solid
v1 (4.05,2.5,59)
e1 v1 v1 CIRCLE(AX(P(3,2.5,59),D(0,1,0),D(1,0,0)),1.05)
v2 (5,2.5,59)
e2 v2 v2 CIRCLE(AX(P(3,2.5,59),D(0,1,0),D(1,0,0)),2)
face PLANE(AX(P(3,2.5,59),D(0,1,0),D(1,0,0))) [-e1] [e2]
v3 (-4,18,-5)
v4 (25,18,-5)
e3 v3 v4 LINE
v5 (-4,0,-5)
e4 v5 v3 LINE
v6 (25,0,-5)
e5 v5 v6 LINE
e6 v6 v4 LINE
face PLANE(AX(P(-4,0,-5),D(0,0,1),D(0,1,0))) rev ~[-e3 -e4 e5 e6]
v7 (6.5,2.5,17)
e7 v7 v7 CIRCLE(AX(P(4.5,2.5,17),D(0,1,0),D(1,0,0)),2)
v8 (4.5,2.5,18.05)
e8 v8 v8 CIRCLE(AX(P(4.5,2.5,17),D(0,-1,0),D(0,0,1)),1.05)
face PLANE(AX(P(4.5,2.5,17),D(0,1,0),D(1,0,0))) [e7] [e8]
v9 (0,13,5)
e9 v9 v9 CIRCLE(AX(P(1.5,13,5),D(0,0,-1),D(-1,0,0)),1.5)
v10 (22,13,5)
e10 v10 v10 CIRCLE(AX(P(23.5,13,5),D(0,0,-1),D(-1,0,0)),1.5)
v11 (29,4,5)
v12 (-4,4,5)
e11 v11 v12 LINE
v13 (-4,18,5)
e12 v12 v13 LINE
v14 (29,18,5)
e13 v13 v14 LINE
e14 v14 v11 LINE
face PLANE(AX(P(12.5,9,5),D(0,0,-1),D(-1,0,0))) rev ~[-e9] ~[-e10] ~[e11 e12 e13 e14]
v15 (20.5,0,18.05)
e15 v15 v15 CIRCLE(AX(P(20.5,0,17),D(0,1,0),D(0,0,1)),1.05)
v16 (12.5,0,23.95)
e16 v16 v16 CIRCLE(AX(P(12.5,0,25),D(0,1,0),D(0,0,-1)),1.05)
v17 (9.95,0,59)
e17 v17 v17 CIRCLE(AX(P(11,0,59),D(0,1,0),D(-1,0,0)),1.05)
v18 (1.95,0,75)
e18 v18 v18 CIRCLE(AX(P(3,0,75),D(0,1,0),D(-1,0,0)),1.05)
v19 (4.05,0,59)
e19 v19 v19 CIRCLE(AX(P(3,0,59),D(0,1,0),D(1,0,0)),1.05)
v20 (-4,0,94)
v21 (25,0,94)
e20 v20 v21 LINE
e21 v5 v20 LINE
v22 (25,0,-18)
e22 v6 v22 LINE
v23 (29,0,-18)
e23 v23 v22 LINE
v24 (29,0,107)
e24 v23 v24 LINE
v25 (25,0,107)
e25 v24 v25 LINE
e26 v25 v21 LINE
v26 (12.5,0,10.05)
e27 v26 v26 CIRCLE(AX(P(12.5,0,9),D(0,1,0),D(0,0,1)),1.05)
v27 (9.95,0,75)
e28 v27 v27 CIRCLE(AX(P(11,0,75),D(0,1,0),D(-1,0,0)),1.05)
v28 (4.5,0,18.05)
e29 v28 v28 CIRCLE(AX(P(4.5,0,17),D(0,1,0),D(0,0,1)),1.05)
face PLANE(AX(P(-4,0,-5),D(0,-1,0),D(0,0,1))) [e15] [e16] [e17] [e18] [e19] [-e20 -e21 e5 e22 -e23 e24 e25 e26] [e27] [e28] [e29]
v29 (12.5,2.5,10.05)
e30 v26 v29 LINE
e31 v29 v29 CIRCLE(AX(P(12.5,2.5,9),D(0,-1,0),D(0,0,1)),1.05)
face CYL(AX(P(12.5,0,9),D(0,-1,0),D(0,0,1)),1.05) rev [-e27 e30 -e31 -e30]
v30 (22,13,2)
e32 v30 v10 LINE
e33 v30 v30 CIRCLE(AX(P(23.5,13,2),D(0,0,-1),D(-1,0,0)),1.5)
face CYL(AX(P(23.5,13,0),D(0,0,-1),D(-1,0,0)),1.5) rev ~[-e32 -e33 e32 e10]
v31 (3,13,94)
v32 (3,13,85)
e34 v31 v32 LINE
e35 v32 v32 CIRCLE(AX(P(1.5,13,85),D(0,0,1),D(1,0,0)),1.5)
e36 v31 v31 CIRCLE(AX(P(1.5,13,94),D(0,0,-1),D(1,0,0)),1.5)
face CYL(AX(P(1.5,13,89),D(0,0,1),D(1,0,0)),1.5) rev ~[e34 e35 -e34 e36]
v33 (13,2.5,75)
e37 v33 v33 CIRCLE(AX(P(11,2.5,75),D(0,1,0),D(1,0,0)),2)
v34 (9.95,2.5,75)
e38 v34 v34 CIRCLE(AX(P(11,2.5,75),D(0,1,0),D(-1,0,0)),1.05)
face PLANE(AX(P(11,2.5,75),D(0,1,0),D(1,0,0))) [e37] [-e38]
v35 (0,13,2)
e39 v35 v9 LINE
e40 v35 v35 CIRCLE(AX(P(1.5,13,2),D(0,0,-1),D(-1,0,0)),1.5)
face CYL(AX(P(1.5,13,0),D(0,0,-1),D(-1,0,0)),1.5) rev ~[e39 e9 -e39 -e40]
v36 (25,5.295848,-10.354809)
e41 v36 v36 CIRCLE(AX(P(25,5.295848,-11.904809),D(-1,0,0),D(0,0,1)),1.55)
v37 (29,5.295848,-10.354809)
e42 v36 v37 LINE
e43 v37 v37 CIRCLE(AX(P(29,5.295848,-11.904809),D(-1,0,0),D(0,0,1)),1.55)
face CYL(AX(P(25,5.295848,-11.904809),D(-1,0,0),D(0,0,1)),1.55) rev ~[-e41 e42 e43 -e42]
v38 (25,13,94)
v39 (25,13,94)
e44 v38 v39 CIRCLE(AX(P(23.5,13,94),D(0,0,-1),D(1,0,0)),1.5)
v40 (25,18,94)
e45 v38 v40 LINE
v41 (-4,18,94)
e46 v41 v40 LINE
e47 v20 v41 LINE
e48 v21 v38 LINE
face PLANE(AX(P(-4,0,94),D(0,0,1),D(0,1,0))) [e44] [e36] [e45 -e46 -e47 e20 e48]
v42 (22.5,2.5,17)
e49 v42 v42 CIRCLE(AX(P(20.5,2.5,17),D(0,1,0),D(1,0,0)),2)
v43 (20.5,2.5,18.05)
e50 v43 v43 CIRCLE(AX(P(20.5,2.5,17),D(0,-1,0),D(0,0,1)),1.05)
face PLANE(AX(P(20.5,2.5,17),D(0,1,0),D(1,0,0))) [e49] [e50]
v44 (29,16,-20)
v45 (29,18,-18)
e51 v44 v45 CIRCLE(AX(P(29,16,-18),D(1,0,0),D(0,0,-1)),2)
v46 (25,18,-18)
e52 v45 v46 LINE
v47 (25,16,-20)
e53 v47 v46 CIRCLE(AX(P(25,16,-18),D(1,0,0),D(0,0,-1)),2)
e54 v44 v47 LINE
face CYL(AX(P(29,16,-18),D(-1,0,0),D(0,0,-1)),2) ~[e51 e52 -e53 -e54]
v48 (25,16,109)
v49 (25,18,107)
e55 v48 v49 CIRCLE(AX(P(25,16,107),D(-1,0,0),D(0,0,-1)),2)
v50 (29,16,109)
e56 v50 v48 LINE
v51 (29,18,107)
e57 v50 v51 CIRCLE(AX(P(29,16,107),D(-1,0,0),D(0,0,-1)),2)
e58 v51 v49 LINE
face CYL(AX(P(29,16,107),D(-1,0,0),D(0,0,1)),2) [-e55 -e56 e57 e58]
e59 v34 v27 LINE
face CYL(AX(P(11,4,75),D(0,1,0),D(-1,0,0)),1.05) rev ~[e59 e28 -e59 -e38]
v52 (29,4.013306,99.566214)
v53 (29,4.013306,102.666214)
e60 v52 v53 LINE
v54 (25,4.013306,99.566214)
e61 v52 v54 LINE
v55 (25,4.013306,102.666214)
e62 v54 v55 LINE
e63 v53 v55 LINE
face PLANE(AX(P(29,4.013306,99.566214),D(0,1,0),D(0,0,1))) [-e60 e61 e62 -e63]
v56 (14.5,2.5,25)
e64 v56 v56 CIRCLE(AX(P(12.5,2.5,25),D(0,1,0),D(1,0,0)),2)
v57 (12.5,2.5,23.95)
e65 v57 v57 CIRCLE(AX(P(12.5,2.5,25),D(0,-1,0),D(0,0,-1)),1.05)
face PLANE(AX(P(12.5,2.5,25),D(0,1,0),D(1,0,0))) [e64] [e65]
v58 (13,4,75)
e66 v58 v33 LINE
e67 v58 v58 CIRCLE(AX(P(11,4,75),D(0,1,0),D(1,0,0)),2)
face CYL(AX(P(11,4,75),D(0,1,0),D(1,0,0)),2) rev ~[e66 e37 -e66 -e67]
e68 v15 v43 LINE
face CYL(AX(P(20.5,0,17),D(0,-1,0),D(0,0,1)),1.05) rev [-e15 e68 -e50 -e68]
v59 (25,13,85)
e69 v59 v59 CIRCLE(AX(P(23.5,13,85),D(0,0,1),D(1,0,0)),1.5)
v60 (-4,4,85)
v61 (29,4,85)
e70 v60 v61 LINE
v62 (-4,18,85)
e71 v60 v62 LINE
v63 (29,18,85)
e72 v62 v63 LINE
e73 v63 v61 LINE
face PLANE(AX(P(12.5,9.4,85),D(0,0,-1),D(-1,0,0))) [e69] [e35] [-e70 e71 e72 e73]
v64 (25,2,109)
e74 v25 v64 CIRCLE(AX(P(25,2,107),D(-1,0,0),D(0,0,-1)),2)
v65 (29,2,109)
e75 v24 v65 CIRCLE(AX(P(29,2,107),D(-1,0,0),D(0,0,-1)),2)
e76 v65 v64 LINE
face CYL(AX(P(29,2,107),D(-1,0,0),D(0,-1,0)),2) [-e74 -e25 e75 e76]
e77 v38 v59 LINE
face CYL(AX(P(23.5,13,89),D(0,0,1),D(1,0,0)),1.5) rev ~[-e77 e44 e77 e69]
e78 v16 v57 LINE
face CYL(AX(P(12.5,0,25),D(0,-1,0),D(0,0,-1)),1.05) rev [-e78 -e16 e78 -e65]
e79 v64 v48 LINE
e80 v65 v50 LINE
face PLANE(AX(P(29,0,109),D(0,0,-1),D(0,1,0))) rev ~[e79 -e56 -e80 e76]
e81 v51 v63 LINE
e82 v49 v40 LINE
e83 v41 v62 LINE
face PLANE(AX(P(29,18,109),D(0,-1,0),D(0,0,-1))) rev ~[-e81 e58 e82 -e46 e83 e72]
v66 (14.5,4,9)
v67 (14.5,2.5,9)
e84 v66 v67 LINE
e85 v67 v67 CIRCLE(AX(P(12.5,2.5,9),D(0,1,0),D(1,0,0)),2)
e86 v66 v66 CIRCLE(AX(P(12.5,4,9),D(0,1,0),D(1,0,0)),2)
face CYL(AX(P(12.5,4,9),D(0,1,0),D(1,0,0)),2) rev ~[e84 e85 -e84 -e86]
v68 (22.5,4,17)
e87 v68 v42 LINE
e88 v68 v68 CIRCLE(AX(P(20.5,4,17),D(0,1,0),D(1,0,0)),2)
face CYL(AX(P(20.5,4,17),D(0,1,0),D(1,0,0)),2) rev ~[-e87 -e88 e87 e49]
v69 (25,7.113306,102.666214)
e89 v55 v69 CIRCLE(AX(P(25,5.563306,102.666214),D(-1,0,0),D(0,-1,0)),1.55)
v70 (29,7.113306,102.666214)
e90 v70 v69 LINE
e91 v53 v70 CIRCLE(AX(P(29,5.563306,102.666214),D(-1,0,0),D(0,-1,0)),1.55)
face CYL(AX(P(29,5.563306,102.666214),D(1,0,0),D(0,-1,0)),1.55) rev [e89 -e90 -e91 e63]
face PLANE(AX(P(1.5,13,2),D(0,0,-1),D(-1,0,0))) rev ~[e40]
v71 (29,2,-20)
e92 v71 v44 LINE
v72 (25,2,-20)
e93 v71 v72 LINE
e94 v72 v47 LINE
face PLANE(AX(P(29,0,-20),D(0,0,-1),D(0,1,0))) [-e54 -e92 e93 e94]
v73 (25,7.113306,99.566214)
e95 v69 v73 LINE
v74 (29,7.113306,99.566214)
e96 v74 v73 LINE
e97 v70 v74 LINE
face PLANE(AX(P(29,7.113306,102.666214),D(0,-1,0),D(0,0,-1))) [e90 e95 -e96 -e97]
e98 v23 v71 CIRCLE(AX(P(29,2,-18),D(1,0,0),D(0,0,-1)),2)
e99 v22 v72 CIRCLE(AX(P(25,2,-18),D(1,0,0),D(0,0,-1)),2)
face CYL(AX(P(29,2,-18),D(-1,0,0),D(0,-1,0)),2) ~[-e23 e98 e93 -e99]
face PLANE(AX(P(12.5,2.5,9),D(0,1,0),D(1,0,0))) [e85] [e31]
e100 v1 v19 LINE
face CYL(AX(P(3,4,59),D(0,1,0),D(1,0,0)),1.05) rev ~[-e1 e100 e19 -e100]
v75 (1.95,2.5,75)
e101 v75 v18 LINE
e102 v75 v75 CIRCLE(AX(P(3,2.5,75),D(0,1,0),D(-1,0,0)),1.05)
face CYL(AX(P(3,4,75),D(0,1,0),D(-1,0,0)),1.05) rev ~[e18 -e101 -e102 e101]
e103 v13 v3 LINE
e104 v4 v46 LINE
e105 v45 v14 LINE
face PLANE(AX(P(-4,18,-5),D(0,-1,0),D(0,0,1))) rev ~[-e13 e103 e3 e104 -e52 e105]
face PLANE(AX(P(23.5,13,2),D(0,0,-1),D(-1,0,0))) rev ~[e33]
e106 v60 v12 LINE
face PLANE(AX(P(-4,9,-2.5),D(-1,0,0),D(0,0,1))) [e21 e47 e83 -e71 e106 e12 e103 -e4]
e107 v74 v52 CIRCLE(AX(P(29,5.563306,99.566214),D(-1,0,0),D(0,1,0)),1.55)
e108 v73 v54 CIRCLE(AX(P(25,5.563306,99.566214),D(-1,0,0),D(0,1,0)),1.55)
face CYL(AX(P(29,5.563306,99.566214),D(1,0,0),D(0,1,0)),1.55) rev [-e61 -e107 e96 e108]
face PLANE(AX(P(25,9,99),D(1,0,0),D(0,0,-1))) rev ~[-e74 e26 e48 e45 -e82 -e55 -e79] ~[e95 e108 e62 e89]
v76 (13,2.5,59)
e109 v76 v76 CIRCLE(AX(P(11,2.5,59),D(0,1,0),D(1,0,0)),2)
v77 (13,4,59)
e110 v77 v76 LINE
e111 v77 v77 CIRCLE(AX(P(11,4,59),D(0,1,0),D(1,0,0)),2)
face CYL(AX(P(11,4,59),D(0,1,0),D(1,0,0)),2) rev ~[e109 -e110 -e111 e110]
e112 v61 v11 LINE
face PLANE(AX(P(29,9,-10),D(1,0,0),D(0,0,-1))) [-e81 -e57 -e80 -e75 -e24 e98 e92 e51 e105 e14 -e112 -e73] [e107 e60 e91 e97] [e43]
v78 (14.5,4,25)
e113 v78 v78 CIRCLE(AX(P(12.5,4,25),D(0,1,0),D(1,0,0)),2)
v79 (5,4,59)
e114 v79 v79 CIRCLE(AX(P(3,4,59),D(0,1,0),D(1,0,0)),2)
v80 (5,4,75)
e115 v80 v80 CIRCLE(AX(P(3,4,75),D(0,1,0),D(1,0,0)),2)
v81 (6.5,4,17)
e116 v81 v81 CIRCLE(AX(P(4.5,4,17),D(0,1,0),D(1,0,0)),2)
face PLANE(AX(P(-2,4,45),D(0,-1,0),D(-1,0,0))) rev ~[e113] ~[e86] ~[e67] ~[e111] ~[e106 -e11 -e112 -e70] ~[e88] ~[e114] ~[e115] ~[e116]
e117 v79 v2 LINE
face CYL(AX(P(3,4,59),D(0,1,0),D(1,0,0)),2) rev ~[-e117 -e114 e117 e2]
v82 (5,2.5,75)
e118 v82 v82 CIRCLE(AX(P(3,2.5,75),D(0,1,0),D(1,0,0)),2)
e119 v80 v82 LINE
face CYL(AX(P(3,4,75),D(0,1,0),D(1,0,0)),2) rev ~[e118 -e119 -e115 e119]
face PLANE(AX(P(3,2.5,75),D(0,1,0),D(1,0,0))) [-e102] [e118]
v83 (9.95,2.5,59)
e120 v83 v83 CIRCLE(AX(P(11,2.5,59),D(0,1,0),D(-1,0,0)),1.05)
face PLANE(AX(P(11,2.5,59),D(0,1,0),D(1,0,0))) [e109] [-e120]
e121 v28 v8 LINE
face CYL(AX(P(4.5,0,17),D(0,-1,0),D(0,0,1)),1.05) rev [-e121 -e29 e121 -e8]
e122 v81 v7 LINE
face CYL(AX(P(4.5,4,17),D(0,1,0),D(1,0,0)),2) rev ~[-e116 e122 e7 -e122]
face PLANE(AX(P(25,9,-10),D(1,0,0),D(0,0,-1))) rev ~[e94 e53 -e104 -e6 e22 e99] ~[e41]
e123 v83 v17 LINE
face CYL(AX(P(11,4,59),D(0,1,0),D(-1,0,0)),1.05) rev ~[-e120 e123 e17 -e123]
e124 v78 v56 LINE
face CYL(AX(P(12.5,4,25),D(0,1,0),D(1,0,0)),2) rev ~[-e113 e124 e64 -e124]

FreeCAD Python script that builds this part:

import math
import FreeCAD as App
import Part
import Sketcher


def edges_at(feature, points):
    """Names of the edges that pass closest to the given points."""
    edges = feature.Shape.Edges
    near = lambda p: min(range(len(edges)), key=lambda i: edges[i].distToShape(Part.Vertex(*p))[0])
    return sorted({f"Edge{near(p) + 1}" for p in points})

doc = App.newDocument("Part")
body = doc.addObject("PartDesign::Body", "Body")

# Sketch on XZ plane
sketch1 = body.newObject("Sketcher::SketchObject", "Sketch")
sketch1.AttachmentSupport = (doc.getObject("XZ_Plane"), [""])
sketch1.MapMode = "FlatFace"
sketch1.addGeometry(Part.LineSegment(App.Vector(0, 0, 0), App.Vector(0, 34, 0)), False)
sketch1.addGeometry(Part.LineSegment(App.Vector(0, 34, 0), App.Vector(25, 34, 0)), False)
sketch1.addGeometry(Part.LineSegment(App.Vector(25, 34, 0), App.Vector(25, 0, 0)), False)
sketch1.addGeometry(Part.LineSegment(App.Vector(25, 0, 0), App.Vector(0, 0, 0)), False)
sketch1.addGeometry(Part.Circle(App.Vector(12.5, 25, 0), App.Vector(0, 0, 1), 1.1), False)
sketch1.addGeometry(Part.Circle(App.Vector(4.5, 17, 0), App.Vector(0, 0, 1), 1.1), False)
sketch1.addGeometry(Part.Circle(App.Vector(12.5, 9, 0), App.Vector(0, 0, 1), 1.1), False)
sketch1.addGeometry(Part.Circle(App.Vector(20.5, 17, 0), App.Vector(0, 0, 1), 1.1), False)
sketch1.addConstraint(Sketcher.Constraint("Coincident", 0, 2, 1, 1))
sketch1.addConstraint(Sketcher.Constraint("Coincident", 1, 2, 2, 1))
sketch1.addConstraint(Sketcher.Constraint("Coincident", 2, 2, 3, 1))
sketch1.addConstraint(Sketcher.Constraint("Coincident", 3, 2, 0, 1))
sketch1.addConstraint(Sketcher.Constraint("Vertical", 0))
sketch1.addConstraint(Sketcher.Constraint("Horizontal", 1))
sketch1.addConstraint(Sketcher.Constraint("Vertical", 2))
sketch1.addConstraint(Sketcher.Constraint("Horizontal", 3))
sketch1.addConstraint(Sketcher.Constraint("Coincident", 3, 2, -1, 1))
sketch1.addConstraint(Sketcher.Constraint("Equal", 4, 5))
sketch1.addConstraint(Sketcher.Constraint("Equal", 5, 6))
sketch1.addConstraint(Sketcher.Constraint("Equal", 6, 7))
sketch1.addConstraint(Sketcher.Constraint("Horizontal", 5, 3, 7, 3))
sketch1.addConstraint(Sketcher.Constraint("Vertical", 4, 3, 6, 3))
sketch1.addConstraint(Sketcher.Constraint("Diameter", 4, 2.1))
sketch1.addConstraint(Sketcher.Constraint("DistanceX", 1, 1, 1, 2, 25.0))
sketch1.addConstraint(Sketcher.Constraint("DistanceY", 0, 1, 0, 2, 34.0))
sketch1.addConstraint(Sketcher.Constraint("DistanceY", -1, 1, 4, 3, 25.0))
sketch1.addConstraint(Sketcher.Constraint("DistanceY", -1, 1, 5, 3, 17.0))
sketch1.addConstraint(Sketcher.Constraint("DistanceY", -1, 1, 6, 3, 9.0))
sketch1.addConstraint(Sketcher.Constraint("DistanceX", 5, 3, 4, 3, 8.0))
sketch1.addConstraint(Sketcher.Constraint("DistanceX", 4, 3, 7, 3, 8.0))
sketch1.addConstraint(Sketcher.Constraint("DistanceX", -1, 1, 4, 3, 12.5))
pad1 = body.newObject("PartDesign::Pad", "Pad")
pad1.Profile = sketch1
pad1.Length = 4
pad1.Reversed = True

# Sketch on XY plane
sketch2 = body.newObject("Sketcher::SketchObject", "Sketch001")
sketch2.AttachmentSupport = (doc.getObject("XY_Plane"), [""])
sketch2.MapMode = "FlatFace"
sketch2.addGeometry(Part.LineSegment(App.Vector(-4, 0, 0), App.Vector(-4, 18, 0)), False)
sketch2.addGeometry(Part.LineSegment(App.Vector(-4, 18, 0), App.Vector(29, 18, 0)), False)
sketch2.addGeometry(Part.LineSegment(App.Vector(29, 18, 0), App.Vector(29, 0, 0)), False)
sketch2.addGeometry(Part.LineSegment(App.Vector(29, 0, 0), App.Vector(-4, 0, 0)), False)
sketch2.addGeometry(Part.Circle(App.Vector(23.5, 13, 0), App.Vector(0, 0, 1), 1.5), False)
sketch2.addGeometry(Part.Circle(App.Vector(1.5, 13, 0), App.Vector(0, 0, 1), 1.5), False)
sketch2.addConstraint(Sketcher.Constraint("Coincident", 0, 2, 1, 1))
sketch2.addConstraint(Sketcher.Constraint("Coincident", 1, 2, 2, 1))
sketch2.addConstraint(Sketcher.Constraint("Coincident", 2, 2, 3, 1))
sketch2.addConstraint(Sketcher.Constraint("Coincident", 3, 2, 0, 1))
sketch2.addConstraint(Sketcher.Constraint("Vertical", 0))
sketch2.addConstraint(Sketcher.Constraint("Horizontal", 1))
sketch2.addConstraint(Sketcher.Constraint("Vertical", 2))
sketch2.addConstraint(Sketcher.Constraint("Horizontal", 3))
sketch2.addConstraint(Sketcher.Constraint("Equal", 4, 5))
sketch2.addConstraint(Sketcher.Constraint("PointOnObject", 2, 2, -1))
sketch2.addConstraint(Sketcher.Constraint("Horizontal", 4, 3, 5, 3))
sketch2.addConstraint(Sketcher.Constraint("Diameter", 4, 3.0))
sketch2.addConstraint(Sketcher.Constraint("DistanceX", 1, 1, 1, 2, 33.0))
sketch2.addConstraint(Sketcher.Constraint("DistanceY", 0, 1, 0, 2, 18.0))
sketch2.addConstraint(Sketcher.Constraint("DistanceY", -1, 1, 4, 3, 13.0))
sketch2.addConstraint(Sketcher.Constraint("DistanceX", 0, 2, -1, 1, 4.0))
sketch2.addConstraint(Sketcher.Constraint("DistanceX", 5, 3, 4, 3, 22.0))
sketch2.addConstraint(Sketcher.Constraint("DistanceX", -1, 1, 4, 3, 23.5))
pad2 = body.newObject("PartDesign::Pad", "Pad001")
pad2.Profile = sketch2
pad2.Length = 5

# Sketch on XY plane
sketch3 = body.newObject("Sketcher::SketchObject", "Sketch002")
sketch3.AttachmentSupport = (doc.getObject("XY_Plane"), [""])
sketch3.MapMode = "FlatFace"
sketch3.addGeometry(Part.Circle(App.Vector(1.5, 13, 0), App.Vector(0, 0, 1), 1.5), False)
sketch3.addGeometry(Part.Circle(App.Vector(23.5, 13, 0), App.Vector(0, 0, 1), 1.5), False)
sketch3.addConstraint(Sketcher.Constraint("Equal", 0, 1))
sketch3.addConstraint(Sketcher.Constraint("Horizontal", 0, 3, 1, 3))
sketch3.addConstraint(Sketcher.Constraint("Diameter", 0, 3.0))
sketch3.addConstraint(Sketcher.Constraint("DistanceY", -1, 1, 0, 3, 13.0))
sketch3.addConstraint(Sketcher.Constraint("DistanceX", 0, 3, 1, 3, 22.0))
sketch3.addConstraint(Sketcher.Constraint("DistanceX", -1, 1, 0, 3, 1.5))
pad3 = body.newObject("PartDesign::Pad", "Pad002")
pad3.Profile = sketch3
pad3.Length = 2

# Sketch on XY plane
sketch4 = body.newObject("Sketcher::SketchObject", "Sketch003")
sketch4.AttachmentSupport = (doc.getObject("XY_Plane"), [""])
sketch4.MapMode = "FlatFace"
sketch4.AttachmentOffset = App.Placement(App.Vector(0, 0, 34), App.Rotation())
sketch4.addGeometry(Part.LineSegment(App.Vector(0, 4, 0), App.Vector(0, 0, 0)), False)
sketch4.addGeometry(Part.LineSegment(App.Vector(0, 0, 0), App.Vector(25, 0, 0)), False)
sketch4.addGeometry(Part.LineSegment(App.Vector(25, 0, 0), App.Vector(25, 4, 0)), False)
sketch4.addGeometry(Part.LineSegment(App.Vector(25, 4, 0), App.Vector(0, 4, 0)), False)
sketch4.addConstraint(Sketcher.Constraint("Coincident", 0, 2, 1, 1))
sketch4.addConstraint(Sketcher.Constraint("Coincident", 1, 2, 2, 1))
sketch4.addConstraint(Sketcher.Constraint("Coincident", 2, 2, 3, 1))
sketch4.addConstraint(Sketcher.Constraint("Coincident", 3, 2, 0, 1))
sketch4.addConstraint(Sketcher.Constraint("Vertical", 0))
sketch4.addConstraint(Sketcher.Constraint("Horizontal", 1))
sketch4.addConstraint(Sketcher.Constraint("Vertical", 2))
sketch4.addConstraint(Sketcher.Constraint("Horizontal", 3))
sketch4.addConstraint(Sketcher.Constraint("Coincident", 0, 2, -1, 1))
sketch4.addConstraint(Sketcher.Constraint("DistanceX", 1, 1, 1, 2, 25.0))
sketch4.addConstraint(Sketcher.Constraint("DistanceY", 0, 2, 0, 1, 4.0))
pad4 = body.newObject("PartDesign::Pad", "Pad003")
pad4.Profile = sketch4
pad4.Length = 55

# Sketch on XY plane
sketch5 = body.newObject("Sketcher::SketchObject", "Sketch004")
sketch5.AttachmentSupport = (doc.getObject("XY_Plane"), [""])
sketch5.MapMode = "FlatFace"
sketch5.AttachmentOffset = App.Placement(App.Vector(0, 0, 89), App.Rotation())
sketch5.addGeometry(Part.LineSegment(App.Vector(29, 18, 0), App.Vector(-4, 18, 0)), False)
sketch5.addGeometry(Part.LineSegment(App.Vector(-4, 18, 0), App.Vector(-4, 0, 0)), False)
sketch5.addGeometry(Part.LineSegment(App.Vector(-4, 0, 0), App.Vector(29, 0, 0)), False)
sketch5.addGeometry(Part.LineSegment(App.Vector(29, 0, 0), App.Vector(29, 18, 0)), False)
sketch5.addGeometry(Part.Circle(App.Vector(23.5, 13, 0), App.Vector(0, 0, 1), 1.5), False)
sketch5.addGeometry(Part.Circle(App.Vector(1.5, 13, 0), App.Vector(0, 0, 1), 1.5), False)
sketch5.addConstraint(Sketcher.Constraint("Coincident", 0, 2, 1, 1))
sketch5.addConstraint(Sketcher.Constraint("Coincident", 1, 2, 2, 1))
sketch5.addConstraint(Sketcher.Constraint("Coincident", 2, 2, 3, 1))
sketch5.addConstraint(Sketcher.Constraint("Coincident", 3, 2, 0, 1))
sketch5.addConstraint(Sketcher.Constraint("Horizontal", 0))
sketch5.addConstraint(Sketcher.Constraint("Vertical", 1))
sketch5.addConstraint(Sketcher.Constraint("Horizontal", 2))
sketch5.addConstraint(Sketcher.Constraint("Vertical", 3))
sketch5.addConstraint(Sketcher.Constraint("Equal", 4, 5))
sketch5.addConstraint(Sketcher.Constraint("PointOnObject", 1, 2, -1))
sketch5.addConstraint(Sketcher.Constraint("Horizontal", 4, 3, 5, 3))
sketch5.addConstraint(Sketcher.Constraint("Diameter", 4, 3.0))
sketch5.addConstraint(Sketcher.Constraint("DistanceX", 0, 2, 0, 1, 33.0))
sketch5.addConstraint(Sketcher.Constraint("DistanceY", 1, 2, 1, 1, 18.0))
sketch5.addConstraint(Sketcher.Constraint("DistanceY", -1, 1, 4, 3, 13.0))
sketch5.addConstraint(Sketcher.Constraint("DistanceX", 0, 2, -1, 1, 4.0))
sketch5.addConstraint(Sketcher.Constraint("DistanceX", 5, 3, 4, 3, 22.0))
sketch5.addConstraint(Sketcher.Constraint("DistanceX", -1, 1, 4, 3, 23.5))
pad5 = body.newObject("PartDesign::Pad", "Pad004")
pad5.Profile = sketch5
pad5.Length = 4
pad5.Reversed = True

# Sketch on XZ plane
sketch6 = body.newObject("Sketcher::SketchObject", "Sketch005")
sketch6.AttachmentSupport = (doc.getObject("XZ_Plane"), [""])
sketch6.MapMode = "FlatFace"
sketch6.addGeometry(Part.LineSegment(App.Vector(0, 5, 0), App.Vector(0, 85, 0)), False)
sketch6.addGeometry(Part.LineSegment(App.Vector(0, 85, 0), App.Vector(-4, 85, 0)), False)
sketch6.addGeometry(Part.LineSegment(App.Vector(-4, 85, 0), App.Vector(-4, 5, 0)), False)
sketch6.addGeometry(Part.LineSegment(App.Vector(-4, 5, 0), App.Vector(0, 5, 0)), False)
sketch6.addGeometry(Part.LineSegment(App.Vector(29, 5, 0), App.Vector(29, 85, 0)), False)
sketch6.addGeometry(Part.LineSegment(App.Vector(29, 85, 0), App.Vector(25, 85, 0)), False)
sketch6.addGeometry(Part.LineSegment(App.Vector(25, 85, 0), App.Vector(25, 5, 0)), False)
sketch6.addGeometry(Part.LineSegment(App.Vector(25, 5, 0), App.Vector(29, 5, 0)), False)
sketch6.addConstraint(Sketcher.Constraint("Coincident", 0, 2, 1, 1))
sketch6.addConstraint(Sketcher.Constraint("Coincident", 1, 2, 2, 1))
sketch6.addConstraint(Sketcher.Constraint("Coincident", 2, 2, 3, 1))
sketch6.addConstraint(Sketcher.Constraint("Coincident", 3, 2, 0, 1))
sketch6.addConstraint(Sketcher.Constraint("Coincident", 4, 2, 5, 1))
sketch6.addConstraint(Sketcher.Constraint("Coincident", 5, 2, 6, 1))
sketch6.addConstraint(Sketcher.Constraint("Coincident", 6, 2, 7, 1))
sketch6.addConstraint(Sketcher.Constraint("Coincident", 7, 2, 4, 1))
sketch6.addConstraint(Sketcher.Constraint("Vertical", 0))
sketch6.addConstraint(Sketcher.Constraint("Horizontal", 1))
sketch6.addConstraint(Sketcher.Constraint("Vertical", 2))
sketch6.addConstraint(Sketcher.Constraint("Horizontal", 3))
sketch6.addConstraint(Sketcher.Constraint("Vertical", 4))
sketch6.addConstraint(Sketcher.Constraint("Horizontal", 5))
sketch6.addConstraint(Sketcher.Constraint("Vertical", 6))
sketch6.addConstraint(Sketcher.Constraint("Horizontal", 7))
sketch6.addConstraint(Sketcher.Constraint("PointOnObject", 0, 2, -2))
sketch6.addConstraint(Sketcher.Constraint("Horizontal", 1, 2, 4, 2))
sketch6.addConstraint(Sketcher.Constraint("Horizontal", 3, 2, 6, 2))
sketch6.addConstraint(Sketcher.Constraint("Equal", 3, 5))
sketch6.addConstraint(Sketcher.Constraint("DistanceX", 1, 2, 1, 1, 4.0))
sketch6.addConstraint(Sketcher.Constraint("DistanceY", 0, 1, 0, 2, 80.0))
sketch6.addConstraint(Sketcher.Constraint("DistanceY", -1, 1, 0, 2, 85.0))
sketch6.addConstraint(Sketcher.Constraint("DistanceX", -1, 1, 4, 2, 29.0))
pad6 = body.newObject("PartDesign::Pad", "Pad005")
pad6.Profile = sketch6
pad6.Length = 4
pad6.Reversed = True

# Sketch on XZ plane
sketch7 = body.newObject("Sketcher::SketchObject", "Sketch006")
sketch7.AttachmentSupport = (doc.getObject("XZ_Plane"), [""])
sketch7.MapMode = "FlatFace"
sketch7.AttachmentOffset = App.Placement(App.Vector(0, 0, -4), App.Rotation())
sketch7.addGeometry(Part.Circle(App.Vector(3, 59, 0), App.Vector(0, 0, 1), 1.1), False)
sketch7.addGeometry(Part.Circle(App.Vector(11, 59, 0), App.Vector(0, 0, 1), 1.1), False)
sketch7.addGeometry(Part.Circle(App.Vector(11, 75, 0), App.Vector(0, 0, 1), 1.1), False)
sketch7.addGeometry(Part.Circle(App.Vector(3, 75, 0), App.Vector(0, 0, 1), 1.1), False)
sketch7.addConstraint(Sketcher.Constraint("Equal", 0, 1))
sketch7.addConstraint(Sketcher.Constraint("Equal", 1, 2))
sketch7.addConstraint(Sketcher.Constraint("Equal", 2, 3))
sketch7.addConstraint(Sketcher.Constraint("Horizontal", 0, 3, 1, 3))
sketch7.addConstraint(Sketcher.Constraint("Horizontal", 2, 3, 3, 3))
sketch7.addConstraint(Sketcher.Constraint("Vertical", 1, 3, 2, 3))
sketch7.addConstraint(Sketcher.Constraint("Vertical", 0, 3, 3, 3))
sketch7.addConstraint(Sketcher.Constraint("Diameter", 0, 2.1))
sketch7.addConstraint(Sketcher.Constraint("DistanceX", -1, 1, 0, 3, 3.0))
sketch7.addConstraint(Sketcher.Constraint("DistanceY", -1, 1, 0, 3, 59.0))
sketch7.addConstraint(Sketcher.Constraint("DistanceX", -1, 1, 1, 3, 11.0))
sketch7.addConstraint(Sketcher.Constraint("DistanceY", -1, 1, 2, 3, 75.0))
pocket1 = body.newObject("PartDesign::Pocket", "Pocket")
pocket1.Profile = sketch7
pocket1.Type = "ThroughAll"
pocket1.Reversed = True

# Sketch on XZ plane
sketch8 = body.newObject("Sketcher::SketchObject", "Sketch007")
sketch8.AttachmentSupport = (doc.getObject("XZ_Plane"), [""])
sketch8.MapMode = "FlatFace"
sketch8.AttachmentOffset = App.Placement(App.Vector(0, 0, -4), App.Rotation())
sketch8.addGeometry(Part.Circle(App.Vector(11, 75, 0), App.Vector(0, 0, 1), 2), False)
sketch8.addGeometry(Part.Circle(App.Vector(3, 75, 0), App.Vector(0, 0, 1), 2), False)
sketch8.addGeometry(Part.Circle(App.Vector(11, 59, 0), App.Vector(0, 0, 1), 2), False)
sketch8.addGeometry(Part.Circle(App.Vector(3, 59, 0), App.Vector(0, 0, 1), 2), False)
sketch8.addConstraint(Sketcher.Constraint("Equal", 0, 1))
sketch8.addConstraint(Sketcher.Constraint("Equal", 1, 2))
sketch8.addConstraint(Sketcher.Constraint("Equal", 2, 3))
sketch8.addConstraint(Sketcher.Constraint("Horizontal", 0, 3, 1, 3))
sketch8.addConstraint(Sketcher.Constraint("Horizontal", 2, 3, 3, 3))
sketch8.addConstraint(Sketcher.Constraint("Vertical", 0, 3, 2, 3))
sketch8.addConstraint(Sketcher.Constraint("Vertical", 1, 3, 3, 3))
sketch8.addConstraint(Sketcher.Constraint("Diameter", 0, 4.0))
sketch8.addConstraint(Sketcher.Constraint("DistanceX", -1, 1, 0, 3, 11.0))
sketch8.addConstraint(Sketcher.Constraint("DistanceY", -1, 1, 0, 3, 75.0))
sketch8.addConstraint(Sketcher.Constraint("DistanceX", -1, 1, 1, 3, 3.0))
sketch8.addConstraint(Sketcher.Constraint("DistanceY", -1, 1, 2, 3, 59.0))
pocket2 = body.newObject("PartDesign::Pocket", "Pocket001")
pocket2.Profile = sketch8
pocket2.Length = 1.5
pocket2.Reversed = True

# Sketch on XZ plane
sketch9 = body.newObject("Sketcher::SketchObject", "Sketch008")
sketch9.AttachmentSupport = (doc.getObject("XZ_Plane"), [""])
sketch9.MapMode = "FlatFace"
sketch9.AttachmentOffset = App.Placement(App.Vector(0, 0, -4), App.Rotation())
sketch9.addGeometry(Part.Circle(App.Vector(4.5, 17, 0), App.Vector(0, 0, 1), 2), False)
sketch9.addGeometry(Part.Circle(App.Vector(12.5, 25, 0), App.Vector(0, 0, 1), 2), False)
sketch9.addGeometry(Part.Circle(App.Vector(20.5, 17, 0), App.Vector(0, 0, 1), 2), False)
sketch9.addGeometry(Part.Circle(App.Vector(12.5, 9, 0), App.Vector(0, 0, 1), 2), False)
sketch9.addConstraint(Sketcher.Constraint("Equal", 0, 1))
sketch9.addConstraint(Sketcher.Constraint("Equal", 1, 2))
sketch9.addConstraint(Sketcher.Constraint("Equal", 2, 3))
sketch9.addConstraint(Sketcher.Constraint("Horizontal", 0, 3, 2, 3))
sketch9.addConstraint(Sketcher.Constraint("Vertical", 1, 3, 3, 3))
sketch9.addConstraint(Sketcher.Constraint("Diameter", 0, 4.0))
sketch9.addConstraint(Sketcher.Constraint("DistanceY", -1, 1, 0, 3, 17.0))
sketch9.addConstraint(Sketcher.Constraint("DistanceY", -1, 1, 1, 3, 25.0))
sketch9.addConstraint(Sketcher.Constraint("DistanceY", -1, 1, 3, 3, 9.0))
sketch9.addConstraint(Sketcher.Constraint("DistanceX", 0, 3, 1, 3, 8.0))
sketch9.addConstraint(Sketcher.Constraint("DistanceX", 1, 3, 2, 3, 8.0))
sketch9.addConstraint(Sketcher.Constraint("DistanceX", -1, 1, 0, 3, 4.5))
pocket3 = body.newObject("PartDesign::Pocket", "Pocket002")
pocket3.Profile = sketch9
pocket3.Length = 1.5
pocket3.Reversed = True

# Sketch on YZ plane
sketch10 = body.newObject("Sketcher::SketchObject", "Sketch009")
sketch10.AttachmentSupport = (doc.getObject("YZ_Plane"), [""])
sketch10.MapMode = "FlatFace"
sketch10.AttachmentOffset = App.Placement(App.Vector(0, 0, 29), App.Rotation())
sketch10.addGeometry(Part.LineSegment(App.Vector(18, 109, 0), App.Vector(0, 109, 0)), False)
sketch10.addGeometry(Part.LineSegment(App.Vector(0, 109, 0), App.Vector(0, 89, 0)), False)
sketch10.addGeometry(Part.LineSegment(App.Vector(0, 89, 0), App.Vector(18, 89, 0)), False)
sketch10.addGeometry(Part.LineSegment(App.Vector(18, 89, 0), App.Vector(18, 109, 0)), False)
sketch10.addGeometry(Part.ArcOfCircle(Part.Circle(App.Vector(5.6, 102.7, 0), App.Vector(0, 0, 1), 1.6), math.radians(0), math.radians(180)), False)
sketch10.addGeometry(Part.LineSegment(App.Vector(7.1, 102.7, 0), App.Vector(7.1, 99.6, 0)), False)
sketch10.addGeometry(Part.ArcOfCircle(Part.Circle(App.Vector(5.6, 99.6, 0), App.Vector(0, 0, 1), 1.6), math.radians(180), math.radians(360)), False)
sketch10.addGeometry(Part.LineSegment(App.Vector(4, 99.6, 0), App.Vector(4, 102.7, 0)), False)
sketch10.addConstraint(Sketcher.Constraint("Coincident", 0, 2, 1, 1))
sketch10.addConstraint(Sketcher.Constraint("Coincident", 1, 2, 2, 1))
sketch10.addConstraint(Sketcher.Constraint("Coincident", 2, 2, 3, 1))
sketch10.addConstraint(Sketcher.Constraint("Coincident", 3, 2, 0, 1))
sketch10.addConstraint(Sketcher.Constraint("Tangent", 4, 1, 5, 1))
sketch10.addConstraint(Sketcher.Constraint("Tangent", 5, 2, 6, 2))
sketch10.addConstraint(Sketcher.Constraint("Tangent", 6, 1, 7, 1))
sketch10.addConstraint(Sketcher.Constraint("Tangent", 7, 2, 4, 2))
sketch10.addConstraint(Sketcher.Constraint("Horizontal", 0))
sketch10.addConstraint(Sketcher.Constraint("Vertical", 1))
sketch10.addConstraint(Sketcher.Constraint("Horizontal", 2))
sketch10.addConstraint(Sketcher.Constraint("Vertical", 3))
sketch10.addConstraint(Sketcher.Constraint("Vertical", 5))
sketch10.addConstraint(Sketcher.Constraint("Vertical", 7))
sketch10.addConstraint(Sketcher.Constraint("PointOnObject", 0, 2, -2))
sketch10.addConstraint(Sketcher.Constraint("DistanceX", 0, 2, 0, 1, 18.0))
sketch10.addConstraint(Sketcher.Constraint("DistanceY", 1, 2, 1, 1, 20.0))
sketch10.addConstraint(Sketcher.Constraint("Radius", 4, 1.55))
sketch10.addConstraint(Sketcher.Constraint("DistanceY", 5, 2, 5, 1, 3.1))
sketch10.addConstraint(Sketcher.Constraint("DistanceY", -1, 1, 0, 2, 109.0))
sketch10.addConstraint(Sketcher.Constraint("DistanceX", -1, 1, 4, 3, 5.563306))
sketch10.addConstraint(Sketcher.Constraint("DistanceY", -1, 1, 4, 3, 102.666214))
pad7 = body.newObject("PartDesign::Pad", "Pad006")
pad7.Profile = sketch10
pad7.Length = 4
pad7.Reversed = True

# Sketch on YZ plane
sketch11 = body.newObject("Sketcher::SketchObject", "Sketch010")
sketch11.AttachmentSupport = (doc.getObject("YZ_Plane"), [""])
sketch11.MapMode = "FlatFace"
sketch11.AttachmentOffset = App.Placement(App.Vector(0, 0, -4), App.Rotation())
sketch11.addGeometry(Part.LineSegment(App.Vector(18, 89, 0), App.Vector(0, 89, 0)), False)
sketch11.addGeometry(Part.LineSegment(App.Vector(0, 89, 0), App.Vector(0, 94, 0)), False)
sketch11.addGeometry(Part.LineSegment(App.Vector(0, 94, 0), App.Vector(18, 94, 0)), False)
sketch11.addGeometry(Part.LineSegment(App.Vector(18, 94, 0), App.Vector(18, 89, 0)), False)
sketch11.addConstraint(Sketcher.Constraint("Coincident", 0, 2, 1, 1))
sketch11.addConstraint(Sketcher.Constraint("Coincident", 1, 2, 2, 1))
sketch11.addConstraint(Sketcher.Constraint("Coincident", 2, 2, 3, 1))
sketch11.addConstraint(Sketcher.Constraint("Coincident", 3, 2, 0, 1))
sketch11.addConstraint(Sketcher.Constraint("Horizontal", 0))
sketch11.addConstraint(Sketcher.Constraint("Vertical", 1))
sketch11.addConstraint(Sketcher.Constraint("Horizontal", 2))
sketch11.addConstraint(Sketcher.Constraint("Vertical", 3))
sketch11.addConstraint(Sketcher.Constraint("PointOnObject", 0, 2, -2))
sketch11.addConstraint(Sketcher.Constraint("DistanceX", 0, 2, 0, 1, 18.0))
sketch11.addConstraint(Sketcher.Constraint("DistanceY", 1, 1, 1, 2, 5.0))
sketch11.addConstraint(Sketcher.Constraint("DistanceY", -1, 1, 0, 2, 89.0))
pad8 = body.newObject("PartDesign::Pad", "Pad007")
pad8.Profile = sketch11
pad8.Length = 29

# Sketch on XY plane
sketch12 = body.newObject("Sketcher::SketchObject", "Sketch011")
sketch12.AttachmentSupport = (doc.getObject("XY_Plane"), [""])
sketch12.MapMode = "FlatFace"
sketch12.AttachmentOffset = App.Placement(App.Vector(0, 0, 89), App.Rotation())
sketch12.addGeometry(Part.Circle(App.Vector(23.5, 13, 0), App.Vector(0, 0, 1), 1.5), False)
sketch12.addGeometry(Part.Circle(App.Vector(1.5, 13, 0), App.Vector(0, 0, 1), 1.5), False)
sketch12.addConstraint(Sketcher.Constraint("Equal", 0, 1))
sketch12.addConstraint(Sketcher.Constraint("Horizontal", 0, 3, 1, 3))
sketch12.addConstraint(Sketcher.Constraint("Diameter", 0, 3.0))
sketch12.addConstraint(Sketcher.Constraint("DistanceY", -1, 1, 0, 3, 13.0))
sketch12.addConstraint(Sketcher.Constraint("DistanceX", 1, 3, 0, 3, 22.0))
sketch12.addConstraint(Sketcher.Constraint("DistanceX", -1, 1, 0, 3, 23.5))
pocket4 = body.newObject("PartDesign::Pocket", "Pocket003")
pocket4.Profile = sketch12
pocket4.Length = 35
pocket4.Reversed = True
doc.recompute()

fillet = body.newObject("PartDesign::Fillet", "Fillet")
fillet.Base = (pocket4, edges_at(pocket4, [(27, 18, 109), (27, 0, 109)]))
fillet.Radius = 2

# Sketch on YZ plane
sketch13 = body.newObject("Sketcher::SketchObject", "Sketch012")
sketch13.AttachmentSupport = (doc.getObject("YZ_Plane"), [""])
sketch13.MapMode = "FlatFace"
sketch13.AttachmentOffset = App.Placement(App.Vector(0, 0, 29), App.Rotation())
sketch13.addGeometry(Part.LineSegment(App.Vector(18, 0, 0), App.Vector(0, 0, 0)), False)
sketch13.addGeometry(Part.LineSegment(App.Vector(0, 0, 0), App.Vector(0, -20, 0)), False)
sketch13.addGeometry(Part.LineSegment(App.Vector(0, -20, 0), App.Vector(18, -20, 0)), False)
sketch13.addGeometry(Part.LineSegment(App.Vector(18, -20, 0), App.Vector(18, 0, 0)), False)
sketch13.addConstraint(Sketcher.Constraint("Coincident", 0, 2, 1, 1))
sketch13.addConstraint(Sketcher.Constraint("Coincident", 1, 2, 2, 1))
sketch13.addConstraint(Sketcher.Constraint("Coincident", 2, 2, 3, 1))
sketch13.addConstraint(Sketcher.Constraint("Coincident", 3, 2, 0, 1))
sketch13.addConstraint(Sketcher.Constraint("Horizontal", 0))
sketch13.addConstraint(Sketcher.Constraint("Vertical", 1))
sketch13.addConstraint(Sketcher.Constraint("Horizontal", 2))
sketch13.addConstraint(Sketcher.Constraint("Vertical", 3))
sketch13.addConstraint(Sketcher.Constraint("Coincident", 0, 2, -1, 1))
sketch13.addConstraint(Sketcher.Constraint("DistanceX", 0, 2, 0, 1, 18.0))
sketch13.addConstraint(Sketcher.Constraint("DistanceY", 1, 2, 1, 1, 20.0))
pad9 = body.newObject("PartDesign::Pad", "Pad008")
pad9.Profile = sketch13
pad9.Length = 4
pad9.Reversed = True

# Sketch on YZ plane
sketch14 = body.newObject("Sketcher::SketchObject", "Sketch013")
sketch14.AttachmentSupport = (doc.getObject("YZ_Plane"), [""])
sketch14.MapMode = "FlatFace"
sketch14.AttachmentOffset = App.Placement(App.Vector(0, 0, -4), App.Rotation())
sketch14.addGeometry(Part.LineSegment(App.Vector(18, -5, 0), App.Vector(0, -5, 0)), False)
sketch14.addGeometry(Part.LineSegment(App.Vector(0, -5, 0), App.Vector(0, 0, 0)), False)
sketch14.addGeometry(Part.LineSegment(App.Vector(0, 0, 0), App.Vector(18, 0, 0)), False)
sketch14.addGeometry(Part.LineSegment(App.Vector(18, 0, 0), App.Vector(18, -5, 0)), False)
sketch14.addConstraint(Sketcher.Constraint("Coincident", 0, 2, 1, 1))
sketch14.addConstraint(Sketcher.Constraint("Coincident", 1, 2, 2, 1))
sketch14.addConstraint(Sketcher.Constraint("Coincident", 2, 2, 3, 1))
sketch14.addConstraint(Sketcher.Constraint("Coincident", 3, 2, 0, 1))
sketch14.addConstraint(Sketcher.Constraint("Horizontal", 0))
sketch14.addConstraint(Sketcher.Constraint("Vertical", 1))
sketch14.addConstraint(Sketcher.Constraint("Horizontal", 2))
sketch14.addConstraint(Sketcher.Constraint("Vertical", 3))
sketch14.addConstraint(Sketcher.Constraint("Coincident", 1, 2, -1, 1))
sketch14.addConstraint(Sketcher.Constraint("DistanceX", 0, 2, 0, 1, 18.0))
sketch14.addConstraint(Sketcher.Constraint("DistanceY", 1, 1, 1, 2, 5.0))
pad10 = body.newObject("PartDesign::Pad", "Pad009")
pad10.Profile = sketch14
pad10.Type = "UpToFirst"
doc.recompute()

fillet2 = body.newObject("PartDesign::Fillet", "Fillet001")
fillet2.Base = (pad10, edges_at(pad10, [(27, 18, -20), (27, 0, -20)]))
fillet2.Radius = 2

# Sketch on YZ plane
sketch15 = body.newObject("Sketcher::SketchObject", "Sketch014")
sketch15.AttachmentSupport = (doc.getObject("YZ_Plane"), [""])
sketch15.MapMode = "FlatFace"
sketch15.AttachmentOffset = App.Placement(App.Vector(0, 0, 25), App.Rotation())
sketch15.addGeometry(Part.Circle(App.Vector(5.3, -11.9, 0), App.Vector(0, 0, 1), 1.6), False)
sketch15.addConstraint(Sketcher.Constraint("Diameter", 0, 3.1))
sketch15.addConstraint(Sketcher.Constraint("DistanceX", -1, 1, 0, 3, 5.295848))
sketch15.addConstraint(Sketcher.Constraint("DistanceY", 0, 3, -1, 1, 11.904809))
pocket5 = body.newObject("PartDesign::Pocket", "Pocket004")
pocket5.Profile = sketch15
pocket5.Type = "ThroughAll"
pocket5.Reversed = True

doc.recompute()
